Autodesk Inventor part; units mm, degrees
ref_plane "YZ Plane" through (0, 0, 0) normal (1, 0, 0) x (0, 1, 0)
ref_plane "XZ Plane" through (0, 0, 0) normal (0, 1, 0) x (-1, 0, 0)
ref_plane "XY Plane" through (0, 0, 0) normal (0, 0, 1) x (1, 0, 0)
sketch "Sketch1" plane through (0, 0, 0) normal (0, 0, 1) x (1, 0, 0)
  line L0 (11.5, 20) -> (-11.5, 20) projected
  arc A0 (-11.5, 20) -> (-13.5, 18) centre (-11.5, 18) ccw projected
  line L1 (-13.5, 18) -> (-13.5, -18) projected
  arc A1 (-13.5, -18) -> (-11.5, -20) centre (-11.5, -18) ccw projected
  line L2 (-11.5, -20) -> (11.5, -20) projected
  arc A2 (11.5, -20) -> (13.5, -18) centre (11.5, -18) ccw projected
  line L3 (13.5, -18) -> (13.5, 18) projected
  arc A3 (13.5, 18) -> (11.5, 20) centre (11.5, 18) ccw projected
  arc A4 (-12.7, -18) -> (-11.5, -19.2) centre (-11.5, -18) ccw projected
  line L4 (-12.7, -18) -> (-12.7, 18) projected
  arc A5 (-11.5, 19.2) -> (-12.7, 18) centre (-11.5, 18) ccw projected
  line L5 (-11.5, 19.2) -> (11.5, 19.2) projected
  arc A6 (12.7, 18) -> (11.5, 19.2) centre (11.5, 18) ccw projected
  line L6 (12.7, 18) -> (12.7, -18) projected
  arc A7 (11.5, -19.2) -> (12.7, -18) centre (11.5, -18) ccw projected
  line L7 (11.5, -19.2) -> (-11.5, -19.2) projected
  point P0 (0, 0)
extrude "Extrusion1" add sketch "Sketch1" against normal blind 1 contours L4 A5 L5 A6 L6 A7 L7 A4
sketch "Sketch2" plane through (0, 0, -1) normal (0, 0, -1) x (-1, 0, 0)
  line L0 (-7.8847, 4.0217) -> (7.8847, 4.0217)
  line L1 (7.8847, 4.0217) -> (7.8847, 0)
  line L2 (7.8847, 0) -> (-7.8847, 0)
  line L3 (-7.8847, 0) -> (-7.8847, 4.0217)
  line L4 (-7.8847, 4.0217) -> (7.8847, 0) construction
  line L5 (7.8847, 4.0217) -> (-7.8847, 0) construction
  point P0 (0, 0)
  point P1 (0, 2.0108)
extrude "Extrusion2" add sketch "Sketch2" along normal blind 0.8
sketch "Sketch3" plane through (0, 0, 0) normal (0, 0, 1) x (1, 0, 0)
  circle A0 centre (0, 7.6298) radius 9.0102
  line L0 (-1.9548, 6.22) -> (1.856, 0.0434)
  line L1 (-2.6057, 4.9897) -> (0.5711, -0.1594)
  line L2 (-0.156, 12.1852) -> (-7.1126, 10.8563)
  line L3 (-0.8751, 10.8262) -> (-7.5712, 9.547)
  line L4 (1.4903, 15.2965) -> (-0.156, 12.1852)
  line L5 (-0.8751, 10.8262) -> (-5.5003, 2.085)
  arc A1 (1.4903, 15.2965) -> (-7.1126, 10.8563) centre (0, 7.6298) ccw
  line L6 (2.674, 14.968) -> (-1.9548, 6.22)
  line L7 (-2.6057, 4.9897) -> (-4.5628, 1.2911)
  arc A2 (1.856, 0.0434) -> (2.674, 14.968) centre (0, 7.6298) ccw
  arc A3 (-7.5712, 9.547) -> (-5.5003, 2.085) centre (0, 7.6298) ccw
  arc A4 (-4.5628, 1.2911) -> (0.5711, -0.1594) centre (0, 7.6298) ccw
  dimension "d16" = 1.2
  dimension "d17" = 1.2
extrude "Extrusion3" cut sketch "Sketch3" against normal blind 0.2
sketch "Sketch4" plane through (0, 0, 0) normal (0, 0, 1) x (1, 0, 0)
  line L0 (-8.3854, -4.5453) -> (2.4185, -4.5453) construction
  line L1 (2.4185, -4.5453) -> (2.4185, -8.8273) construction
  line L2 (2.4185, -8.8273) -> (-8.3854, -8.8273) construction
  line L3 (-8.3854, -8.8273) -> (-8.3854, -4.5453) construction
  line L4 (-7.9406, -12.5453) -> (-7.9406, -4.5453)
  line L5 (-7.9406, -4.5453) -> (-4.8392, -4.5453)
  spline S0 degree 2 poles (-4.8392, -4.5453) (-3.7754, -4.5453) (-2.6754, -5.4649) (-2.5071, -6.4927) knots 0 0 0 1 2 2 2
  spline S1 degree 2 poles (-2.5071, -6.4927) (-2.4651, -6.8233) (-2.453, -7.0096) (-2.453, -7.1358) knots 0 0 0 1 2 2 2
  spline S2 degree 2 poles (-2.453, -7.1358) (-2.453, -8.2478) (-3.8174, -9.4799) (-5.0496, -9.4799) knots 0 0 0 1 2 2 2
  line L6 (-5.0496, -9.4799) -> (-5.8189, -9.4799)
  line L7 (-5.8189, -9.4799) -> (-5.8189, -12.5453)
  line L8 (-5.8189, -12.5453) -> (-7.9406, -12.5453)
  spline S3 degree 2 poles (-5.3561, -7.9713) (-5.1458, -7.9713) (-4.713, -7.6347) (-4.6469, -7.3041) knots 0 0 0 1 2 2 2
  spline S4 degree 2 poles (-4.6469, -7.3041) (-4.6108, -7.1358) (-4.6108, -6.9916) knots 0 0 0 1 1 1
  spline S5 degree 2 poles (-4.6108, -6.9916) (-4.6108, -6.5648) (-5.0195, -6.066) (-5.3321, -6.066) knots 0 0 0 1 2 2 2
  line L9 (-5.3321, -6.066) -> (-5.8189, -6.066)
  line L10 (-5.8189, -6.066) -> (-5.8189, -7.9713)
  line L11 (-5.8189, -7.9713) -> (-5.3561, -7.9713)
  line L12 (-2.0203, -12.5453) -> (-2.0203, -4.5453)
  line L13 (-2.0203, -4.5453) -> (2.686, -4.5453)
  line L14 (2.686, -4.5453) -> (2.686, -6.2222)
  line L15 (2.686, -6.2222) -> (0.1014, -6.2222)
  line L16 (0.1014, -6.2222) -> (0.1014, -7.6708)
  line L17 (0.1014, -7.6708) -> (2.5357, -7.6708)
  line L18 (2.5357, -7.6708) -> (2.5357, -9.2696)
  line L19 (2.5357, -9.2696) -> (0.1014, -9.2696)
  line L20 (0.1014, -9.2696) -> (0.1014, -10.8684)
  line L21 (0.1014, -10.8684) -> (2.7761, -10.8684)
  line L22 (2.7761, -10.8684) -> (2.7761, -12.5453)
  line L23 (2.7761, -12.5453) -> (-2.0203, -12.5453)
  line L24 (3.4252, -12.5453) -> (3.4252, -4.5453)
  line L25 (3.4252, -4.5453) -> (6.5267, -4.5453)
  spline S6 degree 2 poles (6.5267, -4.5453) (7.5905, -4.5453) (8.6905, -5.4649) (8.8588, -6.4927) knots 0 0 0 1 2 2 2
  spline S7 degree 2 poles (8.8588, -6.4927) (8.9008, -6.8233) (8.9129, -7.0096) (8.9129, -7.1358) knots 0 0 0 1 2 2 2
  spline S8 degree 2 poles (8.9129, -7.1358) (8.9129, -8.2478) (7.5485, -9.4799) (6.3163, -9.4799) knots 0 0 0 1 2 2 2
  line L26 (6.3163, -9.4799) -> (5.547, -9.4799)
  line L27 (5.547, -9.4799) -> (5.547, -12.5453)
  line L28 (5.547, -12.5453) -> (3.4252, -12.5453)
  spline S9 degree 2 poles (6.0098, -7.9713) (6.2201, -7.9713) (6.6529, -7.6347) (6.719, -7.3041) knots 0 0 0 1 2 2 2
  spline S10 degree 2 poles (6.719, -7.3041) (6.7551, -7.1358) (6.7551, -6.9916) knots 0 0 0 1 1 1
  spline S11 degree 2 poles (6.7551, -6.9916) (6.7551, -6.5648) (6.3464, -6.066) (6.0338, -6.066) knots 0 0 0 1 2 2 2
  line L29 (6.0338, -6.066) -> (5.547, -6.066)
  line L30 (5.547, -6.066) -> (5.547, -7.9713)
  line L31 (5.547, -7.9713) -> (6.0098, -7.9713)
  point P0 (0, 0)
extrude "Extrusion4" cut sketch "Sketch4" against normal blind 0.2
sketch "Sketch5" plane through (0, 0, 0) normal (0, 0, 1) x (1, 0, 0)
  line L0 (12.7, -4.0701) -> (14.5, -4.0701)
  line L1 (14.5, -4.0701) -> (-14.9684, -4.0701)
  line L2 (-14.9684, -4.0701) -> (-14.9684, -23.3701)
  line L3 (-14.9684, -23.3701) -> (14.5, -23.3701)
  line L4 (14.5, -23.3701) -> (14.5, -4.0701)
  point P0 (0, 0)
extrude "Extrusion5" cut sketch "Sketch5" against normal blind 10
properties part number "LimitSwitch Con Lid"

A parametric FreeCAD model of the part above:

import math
import FreeCAD as App
import Part
import Sketcher

V = App.Vector


def add_polygon(sketch, points):
    """Adds a closed chain of lines whose ends are joined by coincident constraints."""
    first, n = sketch.GeometryCount, len(points)
    for a, b in zip(points, points[1:] + points[:1]):
        sketch.addGeometry(Part.LineSegment(App.Vector(*a, 0), App.Vector(*b, 0)), False)
    for i in range(n):
        sketch.addConstraint(Sketcher.Constraint("Coincident", first + i, 2, first + (i + 1) % n, 1))

doc = App.newDocument("Part")
params = doc.addObject("Spreadsheet::Sheet", "Params")
for row, (alias, value) in enumerate([
    ("sketch1_radius", "1.2 mm"),
    ("sketch1_width", "23 mm"),
    ("sketch1_height", "36 mm"),
    ("pad1_length", "1 mm"),
    ("pad2_length", "0.8 mm"),
    ("sketch3_radius", "7.8101 mm"),
    ("sketch3_length", "3.52 mm"),
    ("pocket1_length", "0.2 mm"),
    ("sketch4_height", "8 mm"),
    ("pocket2_length", "0.2 mm"),
    ("sketch5_height", "19.3 mm"),
    ("pocket3_length", "10 mm"),
], start=1):
    params.set(f"A{row}", alias)
    params.set(f"B{row}", "=" + value)
    params.setAlias(f"B{row}", alias)

body = doc.addObject("PartDesign::Body", "Body")

sketch1 = body.newObject("Sketcher::SketchObject", "Sketch")
sketch1.AttachmentSupport = (doc.getObject("XY_Plane"), [""])
sketch1.MapMode = "FlatFace"
sketch1.addGeometry(Part.LineSegment(V(-12.7, 18, 0), V(-12.7, -18, 0)), False)
sketch1.addGeometry(Part.ArcOfCircle(Part.Circle(V(-11.5, -18, 0), V(0, 0, 1), 1.2), math.radians(180), math.radians(270)), False)
sketch1.addGeometry(Part.LineSegment(V(-11.5, -19.2, 0), V(11.5, -19.2, 0)), False)
sketch1.addGeometry(Part.ArcOfCircle(Part.Circle(V(11.5, -18, 0), V(0, 0, 1), 1.2), math.radians(-90), math.radians(0)), False)
sketch1.addGeometry(Part.LineSegment(V(12.7, -18, 0), V(12.7, 18, 0)), False)
sketch1.addGeometry(Part.ArcOfCircle(Part.Circle(V(11.5, 18, 0), V(0, 0, 1), 1.2), math.radians(0), math.radians(90)), False)
sketch1.addGeometry(Part.LineSegment(V(11.5, 19.2, 0), V(-11.5, 19.2, 0)), False)
sketch1.addGeometry(Part.ArcOfCircle(Part.Circle(V(-11.5, 18, 0), V(0, 0, 1), 1.2), math.radians(90), math.radians(180)), False)
sketch1.addConstraint(Sketcher.Constraint("Tangent", 0, 2, 1, 1))
sketch1.addConstraint(Sketcher.Constraint("Tangent", 1, 2, 2, 1))
sketch1.addConstraint(Sketcher.Constraint("Tangent", 2, 2, 3, 1))
sketch1.addConstraint(Sketcher.Constraint("Tangent", 3, 2, 4, 1))
sketch1.addConstraint(Sketcher.Constraint("Tangent", 4, 2, 5, 1))
sketch1.addConstraint(Sketcher.Constraint("Tangent", 5, 2, 6, 1))
sketch1.addConstraint(Sketcher.Constraint("Tangent", 6, 2, 7, 1))
sketch1.addConstraint(Sketcher.Constraint("Tangent", 7, 2, 0, 1))
sketch1.addConstraint(Sketcher.Constraint("Vertical", 0))
sketch1.addConstraint(Sketcher.Constraint("Horizontal", 2))
sketch1.addConstraint(Sketcher.Constraint("Vertical", 4))
sketch1.addConstraint(Sketcher.Constraint("Horizontal", 6))
sketch1.addConstraint(Sketcher.Constraint("Equal", 1, 3))
sketch1.addConstraint(Sketcher.Constraint("Equal", 3, 5))
sketch1.addConstraint(Sketcher.Constraint("Equal", 5, 7))
sketch1.addConstraint(Sketcher.Constraint("Symmetric", 1, 3, 5, 3, -1, 1))
sketch1.addConstraint(Sketcher.Constraint("Radius", 1, 1.2))
sketch1.addConstraint(Sketcher.Constraint("DistanceX", 2, 1, 2, 2, 23.0))
sketch1.addConstraint(Sketcher.Constraint("DistanceY", 0, 2, 0, 1, 36.0))
sketch1.setExpression("Constraints[16]", "Params.sketch1_radius")
sketch1.setExpression("Constraints[17]", "Params.sketch1_width")
sketch1.setExpression("Constraints[18]", "Params.sketch1_height")
pad1 = body.newObject("PartDesign::Pad", "Pad")
pad1.Profile = sketch1
pad1.setExpression("Length", "Params.pad1_length")
pad1.Reversed = True

sketch2 = body.newObject("Sketcher::SketchObject", "Sketch001")
sketch2.AttachmentSupport = (doc.getObject("XY_Plane"), [""])
sketch2.MapMode = "FlatFace"
sketch2.AttachmentOffset = App.Placement(V(0, 0, -1), App.Rotation())
add_polygon(sketch2, [(-7.9, 4), (7.9, 4), (7.9, 0), (-7.9, 0)])
sketch2.addConstraint(Sketcher.Constraint("Horizontal", 0))
sketch2.addConstraint(Sketcher.Constraint("Vertical", 1))
sketch2.addConstraint(Sketcher.Constraint("Horizontal", 2))
sketch2.addConstraint(Sketcher.Constraint("Vertical", 3))
sketch2.addConstraint(Sketcher.Constraint("Symmetric", 1, 2, 2, 2, -1, 1))
sketch2.addConstraint(Sketcher.Constraint("DistanceX", 0, 1, 0, 2, 15.7694))
sketch2.addConstraint(Sketcher.Constraint("DistanceY", 1, 2, 1, 1, 4.0217))
pad2 = body.newObject("PartDesign::Pad", "Pad001")
pad2.Profile = sketch2
pad2.setExpression("Length", "Params.pad2_length")
pad2.Reversed = True

sketch3 = body.newObject("Sketcher::SketchObject", "Sketch002")
sketch3.AttachmentSupport = (doc.getObject("XY_Plane"), [""])
sketch3.MapMode = "FlatFace"
sketch3.addGeometry(Part.Circle(V(0, 7.6, 0), V(0, 0, 1), 9), False)
sketch3.addGeometry(Part.LineSegment(V(-4.6, 1.3, 0), V(-2.6, 5, 0)), False)
sketch3.addGeometry(Part.LineSegment(V(-2.6, 5, 0), V(0.6, -0.2, 0)), False)
sketch3.addGeometry(Part.ArcOfCircle(Part.Circle(V(0, 7.6, 0), V(0, 0, 1), 7.8), math.radians(-126), math.radians(-86)), False)
sketch3.addGeometry(Part.LineSegment(V(-7.6, 9.5, 0), V(-0.9, 10.8, 0)), False)
sketch3.addGeometry(Part.LineSegment(V(-0.9, 10.8, 0), V(-5.5, 2.1, 0)), False)
sketch3.addGeometry(Part.ArcOfCircle(Part.Circle(V(0, 7.6, 0), V(0, 0, 1), 7.8), math.radians(166), math.radians(225)), False)
sketch3.addGeometry(Part.LineSegment(V(1.9, 0, 0), V(-2, 6.2, 0)), False)
sketch3.addGeometry(Part.LineSegment(V(-2, 6.2, 0), V(2.7, 15, 0)), False)
sketch3.addGeometry(Part.ArcOfCircle(Part.Circle(V(0, 7.6, 0), V(0, 0, 1), 7.8), math.radians(-76), math.radians(70)), False)
sketch3.addGeometry(Part.LineSegment(V(1.5, 15.3, 0), V(-0.2, 12.2, 0)), False)
sketch3.addGeometry(Part.LineSegment(V(-0.2, 12.2, 0), V(-7.1, 10.9, 0)), False)
sketch3.addGeometry(Part.ArcOfCircle(Part.Circle(V(0, 7.6, 0), V(0, 0, 1), 7.8), math.radians(79), math.radians(156)), False)
sketch3.addConstraint(Sketcher.Constraint("Coincident", 1, 2, 2, 1))
sketch3.addConstraint(Sketcher.Constraint("Coincident", 2, 2, 3, 2))
sketch3.addConstraint(Sketcher.Constraint("Coincident", 3, 1, 1, 1))
sketch3.addConstraint(Sketcher.Constraint("Coincident", 4, 2, 5, 1))
sketch3.addConstraint(Sketcher.Constraint("Coincident", 5, 2, 6, 2))
sketch3.addConstraint(Sketcher.Constraint("Coincident", 6, 1, 4, 1))
sketch3.addConstraint(Sketcher.Constraint("Coincident", 7, 2, 8, 1))
sketch3.addConstraint(Sketcher.Constraint("Coincident", 8, 2, 9, 2))
sketch3.addConstraint(Sketcher.Constraint("Coincident", 9, 1, 7, 1))
sketch3.addConstraint(Sketcher.Constraint("Coincident", 10, 2, 11, 1))
sketch3.addConstraint(Sketcher.Constraint("Coincident", 11, 2, 12, 2))
sketch3.addConstraint(Sketcher.Constraint("Coincident", 12, 1, 10, 1))
sketch3.addConstraint(Sketcher.Constraint("Coincident", 3, 3, 0, 3))
sketch3.addConstraint(Sketcher.Constraint("Coincident", 6, 3, 0, 3))
sketch3.addConstraint(Sketcher.Constraint("Coincident", 9, 3, 0, 3))
sketch3.addConstraint(Sketcher.Constraint("Coincident", 12, 3, 0, 3))
sketch3.addConstraint(Sketcher.Constraint("Equal", 3, 6))
sketch3.addConstraint(Sketcher.Constraint("Equal", 6, 9))
sketch3.addConstraint(Sketcher.Constraint("Equal", 9, 12))
sketch3.addConstraint(Sketcher.Constraint("PointOnObject", 0, 3, -2))
sketch3.addConstraint(Sketcher.Constraint("Parallel", 1, 5))
sketch3.addConstraint(Sketcher.Constraint("Parallel", 2, 7))
sketch3.addConstraint(Sketcher.Constraint("Parallel", 5, 8))
sketch3.addConstraint(Sketcher.Constraint("Parallel", 8, 10))
sketch3.addConstraint(Sketcher.Constraint("Parallel", 4, 11))
sketch3.addConstraint(Sketcher.Constraint("Diameter", 0, 18.0204))
sketch3.addConstraint(Sketcher.Constraint("Radius", 3, 7.8101))
sketch3.addConstraint(Sketcher.Constraint("Distance", 10, 3.52))
sketch3.addConstraint(Sketcher.Constraint("DistanceY", -1, 1, 7, 2, 6.22))
sketch3.addConstraint(Sketcher.Constraint("DistanceY", 1, 2, 0, 3, 2.64))
sketch3.addConstraint(Sketcher.Constraint("DistanceX", 10, 2, 8, 2, 2.83))
sketch3.addConstraint(Sketcher.Constraint("DistanceY", 4, 2, 11, 2, 0.03))
sketch3.addConstraint(Sketcher.Constraint("DistanceX", -1, 1, 2, 2, 0.571))
sketch3.addConstraint(Sketcher.Constraint("DistanceY", -1, 1, 3, 1, 1.291))
sketch3.addConstraint(Sketcher.Constraint("DistanceX", 4, 2, -1, 1, 0.875))
sketch3.addConstraint(Sketcher.Constraint("DistanceY", -1, 1, 5, 2, 2.085))
sketch3.addConstraint(Sketcher.Constraint("DistanceY", -1, 1, 6, 1, 9.547))
sketch3.addConstraint(Sketcher.Constraint("DistanceX", -1, 1, 8, 2, 2.674))
sketch3.addConstraint(Sketcher.Constraint("DistanceY", -1, 1, 8, 2, 14.968))
sketch3.setExpression("Constraints[26]", "Params.sketch3_radius")
sketch3.setExpression("Constraints[27]", "Params.sketch3_length")
pocket1 = body.newObject("PartDesign::Pocket", "Pocket")
pocket1.Profile = sketch3
pocket1.setExpression("Length", "Params.pocket1_length")

sketch4 = body.newObject("Sketcher::SketchObject", "Sketch003")
sketch4.AttachmentSupport = (doc.getObject("XY_Plane"), [""])
sketch4.MapMode = "FlatFace"
sketch4.addGeometry(Part.LineSegment(V(-7.9406, -4.5453, 0), V(-7.9406, -12.5453, 0)), False)
sketch4.addGeometry(Part.LineSegment(V(-7.9406, -12.5453, 0), V(-5.8189, -12.5453, 0)), False)
sketch4.addGeometry(Part.LineSegment(V(-5.8189, -12.5453, 0), V(-5.8189, -9.4799, 0)), False)
sketch4.addGeometry(Part.LineSegment(V(-5.8189, -9.4799, 0), V(-5.0496, -9.4799, 0)), False)
sketch4.addGeometry(Part.BSplineCurve([V(-2.453, -7.1358, 0), V(-2.453, -8.2478, 0), V(-3.8174, -9.4799, 0), V(-5.0496, -9.4799, 0)], [3, 1, 3], [0, 1, 2], False, 2, [1, 1, 1, 1], False), False)
sketch4.addGeometry(Part.BSplineCurve([V(-2.5071, -6.4927, 0), V(-2.4651, -6.8233, 0), V(-2.453, -7.0096, 0), V(-2.453, -7.1358, 0)], [3, 1, 3], [0, 1, 2], False, 2, [1, 1, 1, 1], False), False)
sketch4.addGeometry(Part.BSplineCurve([V(-4.8392, -4.5453, 0), V(-3.7754, -4.5453, 0), V(-2.6754, -5.4649, 0), V(-2.5071, -6.4927, 0)], [3, 1, 3], [0, 1, 2], False, 2, [1, 1, 1, 1], False), False)
sketch4.addGeometry(Part.LineSegment(V(-4.8392, -4.5453, 0), V(-7.9406, -4.5453, 0)), False)
sketch4.addGeometry(Part.BSplineCurve([V(-5.3561, -7.9713, 0), V(-5.1458, -7.9713, 0), V(-4.713, -7.6347, 0), V(-4.6469, -7.3041, 0)], [3, 1, 3], [0, 1, 2], False, 2, [1, 1, 1, 1], False), False)
sketch4.addGeometry(Part.LineSegment(V(-5.3561, -7.9713, 0), V(-5.8189, -7.9713, 0)), False)
sketch4.addGeometry(Part.LineSegment(V(-5.8189, -7.9713, 0), V(-5.8189, -6.066, 0)), False)
sketch4.addGeometry(Part.LineSegment(V(-5.8189, -6.066, 0), V(-5.3321, -6.066, 0)), False)
sketch4.addGeometry(Part.BSplineCurve([V(-4.6108, -6.9916, 0), V(-4.6108, -6.5648, 0), V(-5.0195, -6.066, 0), V(-5.3321, -6.066, 0)], [3, 1, 3], [0, 1, 2], False, 2, [1, 1, 1, 1], False), False)
sketch4.addGeometry(Part.BSplineCurve([V(-4.6469, -7.3041, 0), V(-4.6108, -7.1358, 0), V(-4.6108, -6.9916, 0)], [3, 3], [0, 1], False, 2, [1, 1, 1], False), False)
add_polygon(sketch4, [(-2.0203, -4.5453), (-2.0203, -12.5453), (2.7761, -12.5453), (2.7761, -10.8684), (0.1014, -10.8684), (0.1014, -9.2696), (2.5357, -9.2696), (2.5357, -7.6708), (0.1014, -7.6708), (0.1014, -6.2222), (2.686, -6.2222), (2.686, -4.5453)])
sketch4.addGeometry(Part.LineSegment(V(3.4252, -4.5453, 0), V(3.4252, -12.5453, 0)), False)
sketch4.addGeometry(Part.LineSegment(V(3.4252, -12.5453, 0), V(5.547, -12.5453, 0)), False)
sketch4.addGeometry(Part.LineSegment(V(5.547, -12.5453, 0), V(5.547, -9.4799, 0)), False)
sketch4.addGeometry(Part.LineSegment(V(5.547, -9.4799, 0), V(6.3163, -9.4799, 0)), False)
sketch4.addGeometry(Part.BSplineCurve([V(8.9129, -7.1358, 0), V(8.9129, -8.2478, 0), V(7.5485, -9.4799, 0), V(6.3163, -9.4799, 0)], [3, 1, 3], [0, 1, 2], False, 2, [1, 1, 1, 1], False), False)
sketch4.addGeometry(Part.BSplineCurve([V(8.8588, -6.4927, 0), V(8.9008, -6.8233, 0), V(8.9129, -7.0096, 0), V(8.9129, -7.1358, 0)], [3, 1, 3], [0, 1, 2], False, 2, [1, 1, 1, 1], False), False)
sketch4.addGeometry(Part.BSplineCurve([V(6.5267, -4.5453, 0), V(7.5905, -4.5453, 0), V(8.6905, -5.4649, 0), V(8.8588, -6.4927, 0)], [3, 1, 3], [0, 1, 2], False, 2, [1, 1, 1, 1], False), False)
sketch4.addGeometry(Part.LineSegment(V(6.5267, -4.5453, 0), V(3.4252, -4.5453, 0)), False)
sketch4.addGeometry(Part.BSplineCurve([V(6.0098, -7.9713, 0), V(6.2201, -7.9713, 0), V(6.6529, -7.6347, 0), V(6.719, -7.3041, 0)], [3, 1, 3], [0, 1, 2], False, 2, [1, 1, 1, 1], False), False)
sketch4.addGeometry(Part.LineSegment(V(6.0098, -7.9713, 0), V(5.547, -7.9713, 0)), False)
sketch4.addGeometry(Part.LineSegment(V(5.547, -7.9713, 0), V(5.547, -6.066, 0)), False)
sketch4.addGeometry(Part.LineSegment(V(5.547, -6.066, 0), V(6.0338, -6.066, 0)), False)
sketch4.addGeometry(Part.BSplineCurve([V(6.7551, -6.9916, 0), V(6.7551, -6.5648, 0), V(6.3464, -6.066, 0), V(6.0338, -6.066, 0)], [3, 1, 3], [0, 1, 2], False, 2, [1, 1, 1, 1], False), False)
sketch4.addGeometry(Part.BSplineCurve([V(6.719, -7.3041, 0), V(6.7551, -7.1358, 0), V(6.7551, -6.9916, 0)], [3, 3], [0, 1], False, 2, [1, 1, 1], False), False)
sketch4.addConstraint(Sketcher.Constraint("Block", 4))
sketch4.addConstraint(Sketcher.Constraint("Block", 5))
sketch4.addConstraint(Sketcher.Constraint("Block", 6))
sketch4.addConstraint(Sketcher.Constraint("Block", 8))
sketch4.addConstraint(Sketcher.Constraint("Block", 12))
sketch4.addConstraint(Sketcher.Constraint("Block", 13))
sketch4.addConstraint(Sketcher.Constraint("Block", 30))
sketch4.addConstraint(Sketcher.Constraint("Block", 31))
sketch4.addConstraint(Sketcher.Constraint("Block", 32))
sketch4.addConstraint(Sketcher.Constraint("Block", 34))
sketch4.addConstraint(Sketcher.Constraint("Block", 38))
sketch4.addConstraint(Sketcher.Constraint("Block", 39))
sketch4.addConstraint(Sketcher.Constraint("Coincident", 0, 2, 1, 1))
sketch4.addConstraint(Sketcher.Constraint("Coincident", 1, 2, 2, 1))
sketch4.addConstraint(Sketcher.Constraint("Coincident", 2, 2, 3, 1))
sketch4.addConstraint(Sketcher.Constraint("Coincident", 3, 2, 4, 2))
sketch4.addConstraint(Sketcher.Constraint("Coincident", 6, 1, 7, 1))
sketch4.addConstraint(Sketcher.Constraint("Coincident", 7, 2, 0, 1))
sketch4.addConstraint(Sketcher.Constraint("Coincident", 8, 1, 9, 1))
sketch4.addConstraint(Sketcher.Constraint("Coincident", 9, 2, 10, 1))
sketch4.addConstraint(Sketcher.Constraint("Coincident", 10, 2, 11, 1))
sketch4.addConstraint(Sketcher.Constraint("Coincident", 11, 2, 12, 2))
sketch4.addConstraint(Sketcher.Constraint("Coincident", 26, 2, 27, 1))
sketch4.addConstraint(Sketcher.Constraint("Coincident", 27, 2, 28, 1))
sketch4.addConstraint(Sketcher.Constraint("Coincident", 28, 2, 29, 1))
sketch4.addConstraint(Sketcher.Constraint("Coincident", 29, 2, 30, 2))
sketch4.addConstraint(Sketcher.Constraint("Coincident", 32, 1, 33, 1))
sketch4.addConstraint(Sketcher.Constraint("Coincident", 33, 2, 26, 1))
sketch4.addConstraint(Sketcher.Constraint("Coincident", 34, 1, 35, 1))
sketch4.addConstraint(Sketcher.Constraint("Coincident", 35, 2, 36, 1))
sketch4.addConstraint(Sketcher.Constraint("Coincident", 36, 2, 37, 1))
sketch4.addConstraint(Sketcher.Constraint("Coincident", 37, 2, 38, 2))
sketch4.addConstraint(Sketcher.Constraint("Vertical", 0))
sketch4.addConstraint(Sketcher.Constraint("Horizontal", 1))
sketch4.addConstraint(Sketcher.Constraint("Vertical", 2))
sketch4.addConstraint(Sketcher.Constraint("Horizontal", 3))
sketch4.addConstraint(Sketcher.Constraint("Horizontal", 7))
sketch4.addConstraint(Sketcher.Constraint("Horizontal", 9))
sketch4.addConstraint(Sketcher.Constraint("Vertical", 10))
sketch4.addConstraint(Sketcher.Constraint("Horizontal", 11))
sketch4.addConstraint(Sketcher.Constraint("Vertical", 14))
sketch4.addConstraint(Sketcher.Constraint("Horizontal", 15))
sketch4.addConstraint(Sketcher.Constraint("Vertical", 16))
sketch4.addConstraint(Sketcher.Constraint("Horizontal", 17))
sketch4.addConstraint(Sketcher.Constraint("Vertical", 18))
sketch4.addConstraint(Sketcher.Constraint("Horizontal", 19))
sketch4.addConstraint(Sketcher.Constraint("Vertical", 20))
sketch4.addConstraint(Sketcher.Constraint("Horizontal", 21))
sketch4.addConstraint(Sketcher.Constraint("Vertical", 22))
sketch4.addConstraint(Sketcher.Constraint("Horizontal", 23))
sketch4.addConstraint(Sketcher.Constraint("Vertical", 24))
sketch4.addConstraint(Sketcher.Constraint("Horizontal", 25))
sketch4.addConstraint(Sketcher.Constraint("Vertical", 26))
sketch4.addConstraint(Sketcher.Constraint("Horizontal", 27))
sketch4.addConstraint(Sketcher.Constraint("Vertical", 28))
sketch4.addConstraint(Sketcher.Constraint("Horizontal", 29))
sketch4.addConstraint(Sketcher.Constraint("Horizontal", 33))
sketch4.addConstraint(Sketcher.Constraint("Horizontal", 35))
sketch4.addConstraint(Sketcher.Constraint("Vertical", 36))
sketch4.addConstraint(Sketcher.Constraint("Horizontal", 37))
sketch4.addConstraint(Sketcher.Constraint("Horizontal", 1, 2, 14, 2))
sketch4.addConstraint(Sketcher.Constraint("Horizontal", 7, 2, 24, 2))
sketch4.addConstraint(Sketcher.Constraint("Horizontal", 15, 2, 26, 2))
sketch4.addConstraint(Sketcher.Constraint("Vertical", 2, 2, 9, 2))
sketch4.addConstraint(Sketcher.Constraint("Vertical", 18, 2, 21, 2))
sketch4.addConstraint(Sketcher.Constraint("Vertical", 28, 2, 35, 2))
sketch4.addConstraint(Sketcher.Constraint("Equal", 1, 27))
sketch4.addConstraint(Sketcher.Constraint("Equal", 3, 29))
sketch4.addConstraint(Sketcher.Constraint("Equal", 18, 20))
sketch4.addConstraint(Sketcher.Constraint("Equal", 16, 24))
sketch4.addConstraint(Sketcher.Constraint("DistanceY", 0, 2, 0, 1, 8.0))
sketch4.addConstraint(Sketcher.Constraint("DistanceY", 16, 1, 16, 2, 1.677))
sketch4.addConstraint(Sketcher.Constraint("DistanceX", 1, 1, 1, 2, 2.1217))
sketch4.addConstraint(Sketcher.Constraint("DistanceX", 3, 1, 3, 2, 0.7693))
sketch4.addConstraint(Sketcher.Constraint("DistanceX", 15, 1, 15, 2, 4.7964))
sketch4.addConstraint(Sketcher.Constraint("DistanceX", 17, 2, 17, 1, 2.6747))
sketch4.addConstraint(Sketcher.Constraint("DistanceX", 19, 1, 19, 2, 2.4343))
sketch4.addConstraint(Sketcher.Constraint("DistanceX", 23, 1, 23, 2, 2.5846))
sketch4.addConstraint(Sketcher.Constraint("DistanceY", 18, 1, 18, 2, 1.5988))
sketch4.addConstraint(Sketcher.Constraint("DistanceX", -1, 1, 15, 2, 2.776))
sketch4.setExpression("Constraints[82]", "Params.sketch4_height")
pocket2 = body.newObject("PartDesign::Pocket", "Pocket001")
pocket2.Profile = sketch4
pocket2.setExpression("Length", "Params.pocket2_length")

sketch5 = body.newObject("Sketcher::SketchObject", "Sketch004")
sketch5.AttachmentSupport = (doc.getObject("XY_Plane"), [""])
sketch5.MapMode = "FlatFace"
add_polygon(sketch5, [(14, -4), (-15, -4), (-15, -23), (14, -23)])
sketch5.addConstraint(Sketcher.Constraint("Horizontal", 0))
sketch5.addConstraint(Sketcher.Constraint("Vertical", 1))
sketch5.addConstraint(Sketcher.Constraint("Horizontal", 2))
sketch5.addConstraint(Sketcher.Constraint("Vertical", 3))
sketch5.addConstraint(Sketcher.Constraint("DistanceY", 1, 2, 1, 1, 19.3))
sketch5.addConstraint(Sketcher.Constraint("DistanceX", -1, 1, 2, 2, 14.5))
sketch5.addConstraint(Sketcher.Constraint("DistanceY", 0, 2, -1, 1, 4.07))
sketch5.addConstraint(Sketcher.Constraint("DistanceX", 0, 2, 0, 1, 29.4684))
sketch5.setExpression("Constraints[8]", "Params.sketch5_height")
pocket3 = body.newObject("PartDesign::Pocket", "Pocket002")
pocket3.Profile = sketch5
pocket3.setExpression("Length", "Params.pocket3_length")

doc.recompute()
